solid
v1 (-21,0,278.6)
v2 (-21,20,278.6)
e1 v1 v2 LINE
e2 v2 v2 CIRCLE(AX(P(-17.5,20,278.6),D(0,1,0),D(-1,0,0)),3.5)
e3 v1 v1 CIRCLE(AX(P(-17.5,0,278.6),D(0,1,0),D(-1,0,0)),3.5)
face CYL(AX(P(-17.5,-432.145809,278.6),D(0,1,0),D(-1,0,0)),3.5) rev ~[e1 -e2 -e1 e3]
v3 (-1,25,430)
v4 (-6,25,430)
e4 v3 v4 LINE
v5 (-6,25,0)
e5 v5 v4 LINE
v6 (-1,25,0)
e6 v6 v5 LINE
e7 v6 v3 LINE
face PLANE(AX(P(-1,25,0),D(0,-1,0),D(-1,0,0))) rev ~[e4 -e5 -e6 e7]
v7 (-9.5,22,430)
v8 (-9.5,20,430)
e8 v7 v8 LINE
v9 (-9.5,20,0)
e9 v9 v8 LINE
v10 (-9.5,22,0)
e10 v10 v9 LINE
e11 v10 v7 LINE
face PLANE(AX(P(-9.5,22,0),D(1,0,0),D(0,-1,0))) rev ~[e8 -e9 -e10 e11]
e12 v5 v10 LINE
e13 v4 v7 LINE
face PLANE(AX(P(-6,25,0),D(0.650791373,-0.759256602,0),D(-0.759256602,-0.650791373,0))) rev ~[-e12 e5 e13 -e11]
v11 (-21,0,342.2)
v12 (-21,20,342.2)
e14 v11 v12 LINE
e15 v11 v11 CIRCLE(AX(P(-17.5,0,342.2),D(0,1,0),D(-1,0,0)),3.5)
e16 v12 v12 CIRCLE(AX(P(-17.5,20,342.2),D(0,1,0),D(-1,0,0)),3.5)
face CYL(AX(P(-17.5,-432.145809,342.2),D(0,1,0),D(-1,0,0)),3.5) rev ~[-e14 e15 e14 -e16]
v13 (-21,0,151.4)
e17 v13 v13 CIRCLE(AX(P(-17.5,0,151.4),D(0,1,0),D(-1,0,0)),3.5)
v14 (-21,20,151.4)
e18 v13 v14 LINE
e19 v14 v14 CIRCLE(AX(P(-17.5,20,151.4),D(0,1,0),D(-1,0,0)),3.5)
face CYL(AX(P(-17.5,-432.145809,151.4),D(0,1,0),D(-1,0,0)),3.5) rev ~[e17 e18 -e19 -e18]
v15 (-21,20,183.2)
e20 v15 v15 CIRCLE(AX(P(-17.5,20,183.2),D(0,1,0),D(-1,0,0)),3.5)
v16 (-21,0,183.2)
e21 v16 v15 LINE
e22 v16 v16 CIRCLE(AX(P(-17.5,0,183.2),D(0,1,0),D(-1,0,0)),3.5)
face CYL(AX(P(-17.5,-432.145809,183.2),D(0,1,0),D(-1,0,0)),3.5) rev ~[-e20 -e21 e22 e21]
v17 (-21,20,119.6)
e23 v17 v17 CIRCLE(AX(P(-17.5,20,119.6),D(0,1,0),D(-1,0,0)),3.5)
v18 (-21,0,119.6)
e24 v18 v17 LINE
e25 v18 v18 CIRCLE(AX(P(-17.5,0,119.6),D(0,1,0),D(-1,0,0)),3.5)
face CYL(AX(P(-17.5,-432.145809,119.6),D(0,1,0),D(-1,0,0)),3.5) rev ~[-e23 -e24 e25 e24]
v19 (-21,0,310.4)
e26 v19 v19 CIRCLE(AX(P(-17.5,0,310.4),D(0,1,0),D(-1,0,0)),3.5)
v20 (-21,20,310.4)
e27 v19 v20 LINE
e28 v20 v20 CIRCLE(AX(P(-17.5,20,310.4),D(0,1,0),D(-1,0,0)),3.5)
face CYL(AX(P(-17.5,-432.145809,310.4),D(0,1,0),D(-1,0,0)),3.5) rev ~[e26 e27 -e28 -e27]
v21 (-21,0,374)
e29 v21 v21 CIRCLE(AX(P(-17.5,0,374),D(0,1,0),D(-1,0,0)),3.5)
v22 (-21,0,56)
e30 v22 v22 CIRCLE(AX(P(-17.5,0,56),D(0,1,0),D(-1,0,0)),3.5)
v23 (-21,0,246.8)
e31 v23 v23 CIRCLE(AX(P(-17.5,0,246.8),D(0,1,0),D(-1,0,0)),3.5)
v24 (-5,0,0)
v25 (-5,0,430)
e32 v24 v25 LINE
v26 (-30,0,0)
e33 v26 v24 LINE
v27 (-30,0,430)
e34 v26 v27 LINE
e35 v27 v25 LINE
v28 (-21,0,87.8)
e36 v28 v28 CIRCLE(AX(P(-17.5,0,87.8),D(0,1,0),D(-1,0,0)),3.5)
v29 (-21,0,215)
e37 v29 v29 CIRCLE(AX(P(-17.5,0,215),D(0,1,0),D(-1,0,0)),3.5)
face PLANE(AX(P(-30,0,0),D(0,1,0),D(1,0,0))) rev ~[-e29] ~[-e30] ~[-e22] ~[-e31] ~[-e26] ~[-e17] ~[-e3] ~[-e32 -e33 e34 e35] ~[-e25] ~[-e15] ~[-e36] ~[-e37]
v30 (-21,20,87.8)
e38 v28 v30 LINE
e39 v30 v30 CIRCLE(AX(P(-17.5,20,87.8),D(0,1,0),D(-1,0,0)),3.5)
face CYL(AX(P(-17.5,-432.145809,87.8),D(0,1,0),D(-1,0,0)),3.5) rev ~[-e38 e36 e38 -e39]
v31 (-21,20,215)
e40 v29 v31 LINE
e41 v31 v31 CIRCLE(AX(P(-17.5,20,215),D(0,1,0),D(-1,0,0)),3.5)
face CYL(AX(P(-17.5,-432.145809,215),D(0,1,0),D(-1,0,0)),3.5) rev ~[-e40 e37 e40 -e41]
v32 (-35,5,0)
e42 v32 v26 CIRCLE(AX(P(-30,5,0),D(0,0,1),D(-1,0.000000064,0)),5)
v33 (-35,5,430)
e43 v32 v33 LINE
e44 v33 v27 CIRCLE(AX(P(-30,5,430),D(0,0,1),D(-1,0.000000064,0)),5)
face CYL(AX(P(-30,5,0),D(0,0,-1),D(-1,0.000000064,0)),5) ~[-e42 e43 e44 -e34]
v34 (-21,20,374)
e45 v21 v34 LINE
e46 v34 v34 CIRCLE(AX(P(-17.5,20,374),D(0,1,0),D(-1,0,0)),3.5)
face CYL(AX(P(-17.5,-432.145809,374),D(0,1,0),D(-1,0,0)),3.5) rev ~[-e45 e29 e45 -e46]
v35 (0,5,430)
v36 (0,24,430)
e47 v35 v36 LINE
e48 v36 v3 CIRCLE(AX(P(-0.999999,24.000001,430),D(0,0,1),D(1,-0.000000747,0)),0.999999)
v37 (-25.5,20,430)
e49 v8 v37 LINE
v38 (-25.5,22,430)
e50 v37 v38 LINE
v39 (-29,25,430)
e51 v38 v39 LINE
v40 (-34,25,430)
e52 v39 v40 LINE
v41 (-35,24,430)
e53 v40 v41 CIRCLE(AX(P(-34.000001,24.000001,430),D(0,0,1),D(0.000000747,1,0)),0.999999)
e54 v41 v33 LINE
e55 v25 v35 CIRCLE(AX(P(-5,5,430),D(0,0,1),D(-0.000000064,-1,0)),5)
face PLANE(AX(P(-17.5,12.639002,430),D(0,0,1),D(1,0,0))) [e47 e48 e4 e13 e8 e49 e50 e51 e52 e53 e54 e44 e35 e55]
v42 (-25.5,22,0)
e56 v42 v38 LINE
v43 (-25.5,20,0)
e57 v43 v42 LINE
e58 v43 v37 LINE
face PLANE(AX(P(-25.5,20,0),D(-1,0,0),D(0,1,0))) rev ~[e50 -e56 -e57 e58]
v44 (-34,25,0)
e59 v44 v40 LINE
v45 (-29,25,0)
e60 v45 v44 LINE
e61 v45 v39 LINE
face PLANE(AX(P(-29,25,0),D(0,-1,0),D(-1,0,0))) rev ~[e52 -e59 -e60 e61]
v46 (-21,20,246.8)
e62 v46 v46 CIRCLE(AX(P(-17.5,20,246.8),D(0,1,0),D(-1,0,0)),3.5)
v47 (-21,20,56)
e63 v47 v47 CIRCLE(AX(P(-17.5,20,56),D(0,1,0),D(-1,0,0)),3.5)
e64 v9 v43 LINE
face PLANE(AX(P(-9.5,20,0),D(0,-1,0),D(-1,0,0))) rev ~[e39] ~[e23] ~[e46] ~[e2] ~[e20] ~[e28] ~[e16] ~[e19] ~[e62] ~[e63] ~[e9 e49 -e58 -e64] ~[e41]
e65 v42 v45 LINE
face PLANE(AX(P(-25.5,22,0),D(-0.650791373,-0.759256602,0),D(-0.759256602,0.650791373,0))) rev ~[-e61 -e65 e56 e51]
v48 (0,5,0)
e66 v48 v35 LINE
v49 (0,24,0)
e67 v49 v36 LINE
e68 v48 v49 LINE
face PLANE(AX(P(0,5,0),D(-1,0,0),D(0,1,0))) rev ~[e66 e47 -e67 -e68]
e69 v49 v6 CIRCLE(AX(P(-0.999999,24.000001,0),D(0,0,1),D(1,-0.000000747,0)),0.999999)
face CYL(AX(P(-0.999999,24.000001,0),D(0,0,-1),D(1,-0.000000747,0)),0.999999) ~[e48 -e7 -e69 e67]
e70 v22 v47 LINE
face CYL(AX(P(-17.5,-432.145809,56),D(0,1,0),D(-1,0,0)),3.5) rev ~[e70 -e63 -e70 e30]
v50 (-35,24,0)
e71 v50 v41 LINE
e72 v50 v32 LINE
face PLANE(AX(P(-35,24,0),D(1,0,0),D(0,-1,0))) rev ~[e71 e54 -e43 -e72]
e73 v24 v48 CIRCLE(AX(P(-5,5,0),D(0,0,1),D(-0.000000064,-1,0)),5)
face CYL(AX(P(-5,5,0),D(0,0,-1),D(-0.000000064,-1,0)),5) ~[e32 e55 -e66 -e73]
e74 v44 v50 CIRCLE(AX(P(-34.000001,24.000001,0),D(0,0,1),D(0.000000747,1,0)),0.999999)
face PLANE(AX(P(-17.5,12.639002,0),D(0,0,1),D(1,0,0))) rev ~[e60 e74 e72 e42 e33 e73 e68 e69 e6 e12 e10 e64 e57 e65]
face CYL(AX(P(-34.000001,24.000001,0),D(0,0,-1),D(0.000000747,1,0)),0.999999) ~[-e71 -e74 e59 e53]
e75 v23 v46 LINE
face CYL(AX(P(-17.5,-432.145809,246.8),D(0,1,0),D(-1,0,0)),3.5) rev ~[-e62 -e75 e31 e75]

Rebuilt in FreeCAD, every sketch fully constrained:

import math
import FreeCAD as App
import Part
import Sketcher

V = App.Vector

doc = App.newDocument("Part")
params = doc.addObject("Spreadsheet::Sheet", "Params")
for row, (alias, value) in enumerate([
    ("sketch1_radius", "5 mm"),
    ("sketch1_radius2", "0.999999 mm"),
    ("sketch1_width", "25 mm"),
    ("sketch1_width2", "5 mm"),
    ("sketch1_width3", "16 mm"),
    ("pad1_length", "430 mm"),
    ("sketch2_diameter", "7 mm"),
    ("hole_diameter", "7 mm"),
], start=1):
    params.set(f"A{row}", alias)
    params.set(f"B{row}", "=" + value)
    params.setAlias(f"B{row}", alias)

body = doc.addObject("PartDesign::Body", "Body")

sketch1 = body.newObject("Sketcher::SketchObject", "Sketch")
sketch1.AttachmentSupport = (doc.getObject("XY_Plane"), [""])
sketch1.MapMode = "FlatFace"
sketch1.addGeometry([
    Part.LineSegment(V(-30, 0, 0), V(-5, 0, 0)),
    Part.ArcOfCircle(Part.Circle(V(-5, 5, 0), V(0, 0, 1), 5), math.radians(-90), math.radians(0)),
    Part.LineSegment(V(0, 5, 0), V(0, 24, 0)),
    Part.ArcOfCircle(Part.Circle(V(-1, 24, 0), V(0, 0, 1), 1), math.radians(0), math.radians(90)),
    Part.LineSegment(V(-1, 25, 0), V(-6, 25, 0)),
    Part.LineSegment(V(-6, 25, 0), V(-9.5, 22, 0)),
    Part.LineSegment(V(-9.5, 22, 0), V(-9.5, 20, 0)),
    Part.LineSegment(V(-9.5, 20, 0), V(-25.5, 20, 0)),
    Part.LineSegment(V(-25.5, 20, 0), V(-25.5, 22, 0)),
    Part.LineSegment(V(-25.5, 22, 0), V(-29, 25, 0)),
    Part.LineSegment(V(-29, 25, 0), V(-34, 25, 0)),
    Part.ArcOfCircle(Part.Circle(V(-34, 24, 0), V(0, 0, 1), 1), math.radians(90), math.radians(180)),
    Part.LineSegment(V(-35, 24, 0), V(-35, 5, 0)),
    Part.ArcOfCircle(Part.Circle(V(-30, 5, 0), V(0, 0, 1), 5), math.radians(180), math.radians(270)),
], False)
sketch1.addConstraint([
    Sketcher.Constraint("Tangent", 0, 2, 1, 1),
    Sketcher.Constraint("Tangent", 1, 2, 2, 1),
    Sketcher.Constraint("Tangent", 2, 2, 3, 1),
    Sketcher.Constraint("Tangent", 3, 2, 4, 1),
    Sketcher.Constraint("Coincident", 4, 2, 5, 1),
    Sketcher.Constraint("Coincident", 5, 2, 6, 1),
    Sketcher.Constraint("Coincident", 6, 2, 7, 1),
    Sketcher.Constraint("Coincident", 7, 2, 8, 1),
    Sketcher.Constraint("Coincident", 8, 2, 9, 1),
    Sketcher.Constraint("Coincident", 9, 2, 10, 1),
    Sketcher.Constraint("Tangent", 10, 2, 11, 1),
    Sketcher.Constraint("Tangent", 11, 2, 12, 1),
    Sketcher.Constraint("Tangent", 12, 2, 13, 1),
    Sketcher.Constraint("Tangent", 13, 2, 0, 1),
    Sketcher.Constraint("Horizontal", 0),
    Sketcher.Constraint("Vertical", 2),
    Sketcher.Constraint("Horizontal", 4),
    Sketcher.Constraint("Vertical", 6),
    Sketcher.Constraint("Horizontal", 7),
    Sketcher.Constraint("Vertical", 8),
    Sketcher.Constraint("Horizontal", 10),
    Sketcher.Constraint("Vertical", 12),
    Sketcher.Constraint("Equal", 3, 11),
    Sketcher.Constraint("Equal", 1, 13),
    Sketcher.Constraint("PointOnObject", 0, 2, -1),
    Sketcher.Constraint("PointOnObject", 1, 2, -2),
    Sketcher.Constraint("Horizontal", 3, 3, 11, 3),
    Sketcher.Constraint("Horizontal", 5, 2, 8, 2),
    Sketcher.Constraint("Equal", 4, 10),
    Sketcher.Constraint("Equal", 5, 9),
    Sketcher.Constraint("Radius", 1, 5.0),
    Sketcher.Constraint("Radius", 3, 0.999999),
    Sketcher.Constraint("DistanceX", 0, 1, 0, 2, 25.0),
    Sketcher.Constraint("DistanceX", 4, 2, 4, 1, 5.0),
    Sketcher.Constraint("DistanceX", 7, 2, 7, 1, 16.0),
    Sketcher.Constraint("DistanceY", 2, 1, 2, 2, 19.0),
    Sketcher.Constraint("DistanceY", 6, 2, 6, 1, 2.0),
    Sketcher.Constraint("DistanceY", -1, 1, 5, 2, 22.0),
])
sketch1.setExpression("Constraints[30]", "Params.sketch1_radius")
sketch1.setExpression("Constraints[31]", "Params.sketch1_radius2")
sketch1.setExpression("Constraints[32]", "Params.sketch1_width")
sketch1.setExpression("Constraints[33]", "Params.sketch1_width2")
sketch1.setExpression("Constraints[34]", "Params.sketch1_width3")
pad1 = body.newObject("PartDesign::Pad", "Pad")
pad1.Profile = sketch1
pad1.setExpression("Length", "Params.pad1_length")

sketch2 = body.newObject("Sketcher::SketchObject", "Sketch001")
sketch2.AttachmentSupport = (doc.getObject("XZ_Plane"), [""])
sketch2.MapMode = "FlatFace"
sketch2.addGeometry([
    Part.Circle(V(-17.5, 374, 0), V(0, 0, 1), 3.5),
    Part.Circle(V(-17.5, 342.2, 0), V(0, 0, 1), 3.5),
    Part.Circle(V(-17.5, 310.4, 0), V(0, 0, 1), 3.5),
    Part.Circle(V(-17.5, 278.6, 0), V(0, 0, 1), 3.5),
    Part.Circle(V(-17.5, 246.8, 0), V(0, 0, 1), 3.5),
    Part.Circle(V(-17.5, 215, 0), V(0, 0, 1), 3.5),
    Part.Circle(V(-17.5, 183.2, 0), V(0, 0, 1), 3.5),
    Part.Circle(V(-17.5, 151.4, 0), V(0, 0, 1), 3.5),
    Part.Circle(V(-17.5, 119.6, 0), V(0, 0, 1), 3.5),
    Part.Circle(V(-17.5, 87.8, 0), V(0, 0, 1), 3.5),
    Part.Circle(V(-17.5, 56, 0), V(0, 0, 1), 3.5),
], False)
sketch2.addConstraint([
    Sketcher.Constraint("Equal", 0, 1),
    Sketcher.Constraint("Equal", 1, 2),
    Sketcher.Constraint("Equal", 2, 3),
    Sketcher.Constraint("Equal", 3, 4),
    Sketcher.Constraint("Equal", 4, 5),
    Sketcher.Constraint("Equal", 5, 6),
    Sketcher.Constraint("Equal", 6, 7),
    Sketcher.Constraint("Equal", 7, 8),
    Sketcher.Constraint("Equal", 8, 9),
    Sketcher.Constraint("Equal", 9, 10),
    Sketcher.Constraint("Vertical", 0, 3, 1, 3),
    Sketcher.Constraint("Vertical", 1, 3, 2, 3),
    Sketcher.Constraint("Vertical", 2, 3, 3, 3),
    Sketcher.Constraint("Vertical", 3, 3, 4, 3),
    Sketcher.Constraint("Vertical", 4, 3, 5, 3),
    Sketcher.Constraint("Vertical", 5, 3, 6, 3),
    Sketcher.Constraint("Vertical", 6, 3, 7, 3),
    Sketcher.Constraint("Vertical", 7, 3, 8, 3),
    Sketcher.Constraint("Vertical", 8, 3, 9, 3),
    Sketcher.Constraint("Vertical", 9, 3, 10, 3),
    Sketcher.Constraint("Diameter", 0, 7.0),
    Sketcher.Constraint("DistanceY", -1, 1, 0, 3, 374.0),
    Sketcher.Constraint("DistanceY", -1, 1, 5, 3, 215.0),
    Sketcher.Constraint("DistanceY", -1, 1, 10, 3, 56.0),
    Sketcher.Constraint("DistanceY", 6, 3, 1, 3, 159.0),
    Sketcher.Constraint("DistanceY", 7, 3, 2, 3, 159.0),
    Sketcher.Constraint("DistanceY", 8, 3, 3, 3, 159.0),
    Sketcher.Constraint("DistanceY", 9, 3, 4, 3, 159.0),
    Sketcher.Constraint("DistanceX", 0, 3, -1, 1, 17.5),
    Sketcher.Constraint("DistanceY", -1, 1, 1, 3, 342.2),
    Sketcher.Constraint("DistanceY", -1, 1, 2, 3, 310.4),
    Sketcher.Constraint("DistanceY", -1, 1, 3, 3, 278.6),
    Sketcher.Constraint("DistanceY", -1, 1, 4, 3, 246.8),
])
sketch2.setExpression("Constraints[20]", "Params.sketch2_diameter")
doc.recompute()
hole = body.newObject("PartDesign::Hole", "Hole")
hole.Profile = sketch2
hole.ThreadType = "None"
hole.setExpression("Diameter", "Params.hole_diameter")
hole.DepthType = "ThroughAll"

doc.recompute()
